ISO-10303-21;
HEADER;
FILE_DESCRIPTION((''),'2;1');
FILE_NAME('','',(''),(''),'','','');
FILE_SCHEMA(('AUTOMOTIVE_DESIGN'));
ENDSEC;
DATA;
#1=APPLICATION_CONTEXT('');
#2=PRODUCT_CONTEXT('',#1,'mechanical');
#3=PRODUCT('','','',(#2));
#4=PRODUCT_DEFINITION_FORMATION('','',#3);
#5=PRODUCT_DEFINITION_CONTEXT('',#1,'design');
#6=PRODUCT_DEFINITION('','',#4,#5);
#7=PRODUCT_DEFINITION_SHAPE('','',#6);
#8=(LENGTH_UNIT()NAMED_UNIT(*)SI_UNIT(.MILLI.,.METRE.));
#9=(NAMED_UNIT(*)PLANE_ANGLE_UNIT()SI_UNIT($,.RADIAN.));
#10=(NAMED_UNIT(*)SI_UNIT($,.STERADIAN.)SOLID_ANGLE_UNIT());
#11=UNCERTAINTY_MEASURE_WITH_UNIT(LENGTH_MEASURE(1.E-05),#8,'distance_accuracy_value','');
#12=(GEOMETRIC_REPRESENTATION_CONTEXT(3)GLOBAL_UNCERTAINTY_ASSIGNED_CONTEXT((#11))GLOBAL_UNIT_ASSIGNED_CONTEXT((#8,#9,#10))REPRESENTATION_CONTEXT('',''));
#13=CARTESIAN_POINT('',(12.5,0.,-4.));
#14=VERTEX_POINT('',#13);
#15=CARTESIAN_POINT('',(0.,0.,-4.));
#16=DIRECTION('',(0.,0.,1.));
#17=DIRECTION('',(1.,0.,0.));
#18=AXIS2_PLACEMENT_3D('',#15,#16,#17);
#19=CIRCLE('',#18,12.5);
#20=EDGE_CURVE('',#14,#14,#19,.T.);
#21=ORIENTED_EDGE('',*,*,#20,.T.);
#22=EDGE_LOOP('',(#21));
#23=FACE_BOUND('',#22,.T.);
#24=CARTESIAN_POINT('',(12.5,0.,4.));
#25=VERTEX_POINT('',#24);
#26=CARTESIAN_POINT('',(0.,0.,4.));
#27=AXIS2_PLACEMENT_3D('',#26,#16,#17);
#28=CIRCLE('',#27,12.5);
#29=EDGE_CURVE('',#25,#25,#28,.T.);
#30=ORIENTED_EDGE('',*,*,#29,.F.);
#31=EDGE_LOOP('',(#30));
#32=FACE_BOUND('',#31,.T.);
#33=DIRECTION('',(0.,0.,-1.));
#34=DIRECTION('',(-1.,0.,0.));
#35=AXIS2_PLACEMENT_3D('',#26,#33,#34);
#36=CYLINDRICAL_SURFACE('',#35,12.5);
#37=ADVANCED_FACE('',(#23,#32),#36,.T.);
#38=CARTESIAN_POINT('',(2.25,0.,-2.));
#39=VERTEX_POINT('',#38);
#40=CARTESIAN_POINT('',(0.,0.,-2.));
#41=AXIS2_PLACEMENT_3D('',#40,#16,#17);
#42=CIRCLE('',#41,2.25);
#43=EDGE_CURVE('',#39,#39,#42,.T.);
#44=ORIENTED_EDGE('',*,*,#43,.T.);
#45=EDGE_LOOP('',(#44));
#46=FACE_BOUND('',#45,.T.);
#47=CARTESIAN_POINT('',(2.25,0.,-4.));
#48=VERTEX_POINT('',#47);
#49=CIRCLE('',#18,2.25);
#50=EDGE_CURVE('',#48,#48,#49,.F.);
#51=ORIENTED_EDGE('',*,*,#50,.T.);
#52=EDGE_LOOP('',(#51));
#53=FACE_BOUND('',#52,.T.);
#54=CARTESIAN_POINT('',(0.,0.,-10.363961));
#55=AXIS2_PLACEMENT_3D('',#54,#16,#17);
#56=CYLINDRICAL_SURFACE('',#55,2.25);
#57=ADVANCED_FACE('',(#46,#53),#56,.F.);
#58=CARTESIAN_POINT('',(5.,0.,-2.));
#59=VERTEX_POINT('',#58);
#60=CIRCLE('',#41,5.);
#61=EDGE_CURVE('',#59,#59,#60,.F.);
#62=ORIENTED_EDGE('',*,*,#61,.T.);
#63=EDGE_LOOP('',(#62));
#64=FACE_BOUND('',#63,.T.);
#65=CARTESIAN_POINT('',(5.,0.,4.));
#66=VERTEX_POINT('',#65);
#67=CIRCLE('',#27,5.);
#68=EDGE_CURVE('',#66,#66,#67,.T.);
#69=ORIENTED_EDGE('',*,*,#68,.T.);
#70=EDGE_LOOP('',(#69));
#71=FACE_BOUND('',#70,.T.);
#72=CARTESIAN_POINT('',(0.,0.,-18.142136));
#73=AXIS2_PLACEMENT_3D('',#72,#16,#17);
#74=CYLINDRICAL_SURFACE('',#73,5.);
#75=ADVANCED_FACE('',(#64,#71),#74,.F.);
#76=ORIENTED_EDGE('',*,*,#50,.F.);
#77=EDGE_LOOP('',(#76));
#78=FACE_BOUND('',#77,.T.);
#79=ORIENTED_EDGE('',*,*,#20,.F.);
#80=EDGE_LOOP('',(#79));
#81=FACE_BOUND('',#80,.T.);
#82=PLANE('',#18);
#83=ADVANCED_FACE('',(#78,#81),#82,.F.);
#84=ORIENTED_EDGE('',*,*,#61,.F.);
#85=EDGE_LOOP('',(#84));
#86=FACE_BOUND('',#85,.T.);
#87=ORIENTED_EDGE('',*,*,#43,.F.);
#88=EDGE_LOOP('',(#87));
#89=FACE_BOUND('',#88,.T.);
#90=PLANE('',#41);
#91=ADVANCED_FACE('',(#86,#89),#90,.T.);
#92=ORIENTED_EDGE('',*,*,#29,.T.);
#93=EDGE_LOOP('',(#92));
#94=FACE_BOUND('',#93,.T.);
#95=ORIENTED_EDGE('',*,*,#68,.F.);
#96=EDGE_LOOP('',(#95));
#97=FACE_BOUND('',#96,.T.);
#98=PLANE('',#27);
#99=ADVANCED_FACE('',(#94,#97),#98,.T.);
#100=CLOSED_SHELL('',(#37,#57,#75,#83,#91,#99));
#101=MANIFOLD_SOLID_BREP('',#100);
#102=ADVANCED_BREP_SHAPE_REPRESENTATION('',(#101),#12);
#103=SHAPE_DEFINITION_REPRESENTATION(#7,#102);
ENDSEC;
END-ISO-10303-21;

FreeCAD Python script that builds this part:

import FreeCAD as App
import Part
import Sketcher
from FreeCAD import Vector

doc = App.newDocument("Part")
body = doc.addObject("PartDesign::Body", "Body")

# Sketch on XY plane
sketch1 = body.newObject("Sketcher::SketchObject", "Sketch")
sketch1.AttachmentSupport = (doc.getObject("XY_Plane"), [""])
sketch1.MapMode = "FlatFace"
sketch1.addGeometry(Part.Circle(Vector(0, 0, 0), Vector(0, 0, 1), 12.5), False)
sketch1.addConstraint(Sketcher.Constraint("Coincident", 0, 3, -1, 1))
sketch1.addConstraint(Sketcher.Constraint("Diameter", 0, 25.0))
pad1 = body.newObject("PartDesign::Pad", "Pad")
pad1.Profile = sketch1
pad1.Length = 8
pad1.Midplane = True

# Sketch on XY plane
sketch2 = body.newObject("Sketcher::SketchObject", "Sketch001")
sketch2.AttachmentSupport = (doc.getObject("XY_Plane"), [""])
sketch2.MapMode = "FlatFace"
sketch2.AttachmentOffset = App.Placement(Vector(0, 0, 4), App.Rotation())
sketch2.addGeometry(Part.Circle(Vector(0, 0, 0), Vector(0, 0, 1), 5), False)
sketch2.addConstraint(Sketcher.Constraint("Coincident", 0, 3, -1, 1))
sketch2.addConstraint(Sketcher.Constraint("Diameter", 0, 10.0))
pocket1 = body.newObject("PartDesign::Pocket", "Pocket")
pocket1.Profile = sketch2
pocket1.Length = 6

# Sketch on XY plane
sketch3 = body.newObject("Sketcher::SketchObject", "Sketch002")
sketch3.AttachmentSupport = (doc.getObject("XY_Plane"), [""])
sketch3.MapMode = "FlatFace"
sketch3.AttachmentOffset = App.Placement(Vector(0, 0, -2), App.Rotation())
sketch3.addGeometry(Part.Circle(Vector(0, 0, 0), Vector(0, 0, 1), 2.25), False)
sketch3.addConstraint(Sketcher.Constraint("Coincident", 0, 3, -1, 1))
sketch3.addConstraint(Sketcher.Constraint("Diameter", 0, 4.5))
pocket2 = body.newObject("PartDesign::Pocket", "Pocket001")
pocket2.Profile = sketch3
pocket2.Length = 2

doc.recompute()
